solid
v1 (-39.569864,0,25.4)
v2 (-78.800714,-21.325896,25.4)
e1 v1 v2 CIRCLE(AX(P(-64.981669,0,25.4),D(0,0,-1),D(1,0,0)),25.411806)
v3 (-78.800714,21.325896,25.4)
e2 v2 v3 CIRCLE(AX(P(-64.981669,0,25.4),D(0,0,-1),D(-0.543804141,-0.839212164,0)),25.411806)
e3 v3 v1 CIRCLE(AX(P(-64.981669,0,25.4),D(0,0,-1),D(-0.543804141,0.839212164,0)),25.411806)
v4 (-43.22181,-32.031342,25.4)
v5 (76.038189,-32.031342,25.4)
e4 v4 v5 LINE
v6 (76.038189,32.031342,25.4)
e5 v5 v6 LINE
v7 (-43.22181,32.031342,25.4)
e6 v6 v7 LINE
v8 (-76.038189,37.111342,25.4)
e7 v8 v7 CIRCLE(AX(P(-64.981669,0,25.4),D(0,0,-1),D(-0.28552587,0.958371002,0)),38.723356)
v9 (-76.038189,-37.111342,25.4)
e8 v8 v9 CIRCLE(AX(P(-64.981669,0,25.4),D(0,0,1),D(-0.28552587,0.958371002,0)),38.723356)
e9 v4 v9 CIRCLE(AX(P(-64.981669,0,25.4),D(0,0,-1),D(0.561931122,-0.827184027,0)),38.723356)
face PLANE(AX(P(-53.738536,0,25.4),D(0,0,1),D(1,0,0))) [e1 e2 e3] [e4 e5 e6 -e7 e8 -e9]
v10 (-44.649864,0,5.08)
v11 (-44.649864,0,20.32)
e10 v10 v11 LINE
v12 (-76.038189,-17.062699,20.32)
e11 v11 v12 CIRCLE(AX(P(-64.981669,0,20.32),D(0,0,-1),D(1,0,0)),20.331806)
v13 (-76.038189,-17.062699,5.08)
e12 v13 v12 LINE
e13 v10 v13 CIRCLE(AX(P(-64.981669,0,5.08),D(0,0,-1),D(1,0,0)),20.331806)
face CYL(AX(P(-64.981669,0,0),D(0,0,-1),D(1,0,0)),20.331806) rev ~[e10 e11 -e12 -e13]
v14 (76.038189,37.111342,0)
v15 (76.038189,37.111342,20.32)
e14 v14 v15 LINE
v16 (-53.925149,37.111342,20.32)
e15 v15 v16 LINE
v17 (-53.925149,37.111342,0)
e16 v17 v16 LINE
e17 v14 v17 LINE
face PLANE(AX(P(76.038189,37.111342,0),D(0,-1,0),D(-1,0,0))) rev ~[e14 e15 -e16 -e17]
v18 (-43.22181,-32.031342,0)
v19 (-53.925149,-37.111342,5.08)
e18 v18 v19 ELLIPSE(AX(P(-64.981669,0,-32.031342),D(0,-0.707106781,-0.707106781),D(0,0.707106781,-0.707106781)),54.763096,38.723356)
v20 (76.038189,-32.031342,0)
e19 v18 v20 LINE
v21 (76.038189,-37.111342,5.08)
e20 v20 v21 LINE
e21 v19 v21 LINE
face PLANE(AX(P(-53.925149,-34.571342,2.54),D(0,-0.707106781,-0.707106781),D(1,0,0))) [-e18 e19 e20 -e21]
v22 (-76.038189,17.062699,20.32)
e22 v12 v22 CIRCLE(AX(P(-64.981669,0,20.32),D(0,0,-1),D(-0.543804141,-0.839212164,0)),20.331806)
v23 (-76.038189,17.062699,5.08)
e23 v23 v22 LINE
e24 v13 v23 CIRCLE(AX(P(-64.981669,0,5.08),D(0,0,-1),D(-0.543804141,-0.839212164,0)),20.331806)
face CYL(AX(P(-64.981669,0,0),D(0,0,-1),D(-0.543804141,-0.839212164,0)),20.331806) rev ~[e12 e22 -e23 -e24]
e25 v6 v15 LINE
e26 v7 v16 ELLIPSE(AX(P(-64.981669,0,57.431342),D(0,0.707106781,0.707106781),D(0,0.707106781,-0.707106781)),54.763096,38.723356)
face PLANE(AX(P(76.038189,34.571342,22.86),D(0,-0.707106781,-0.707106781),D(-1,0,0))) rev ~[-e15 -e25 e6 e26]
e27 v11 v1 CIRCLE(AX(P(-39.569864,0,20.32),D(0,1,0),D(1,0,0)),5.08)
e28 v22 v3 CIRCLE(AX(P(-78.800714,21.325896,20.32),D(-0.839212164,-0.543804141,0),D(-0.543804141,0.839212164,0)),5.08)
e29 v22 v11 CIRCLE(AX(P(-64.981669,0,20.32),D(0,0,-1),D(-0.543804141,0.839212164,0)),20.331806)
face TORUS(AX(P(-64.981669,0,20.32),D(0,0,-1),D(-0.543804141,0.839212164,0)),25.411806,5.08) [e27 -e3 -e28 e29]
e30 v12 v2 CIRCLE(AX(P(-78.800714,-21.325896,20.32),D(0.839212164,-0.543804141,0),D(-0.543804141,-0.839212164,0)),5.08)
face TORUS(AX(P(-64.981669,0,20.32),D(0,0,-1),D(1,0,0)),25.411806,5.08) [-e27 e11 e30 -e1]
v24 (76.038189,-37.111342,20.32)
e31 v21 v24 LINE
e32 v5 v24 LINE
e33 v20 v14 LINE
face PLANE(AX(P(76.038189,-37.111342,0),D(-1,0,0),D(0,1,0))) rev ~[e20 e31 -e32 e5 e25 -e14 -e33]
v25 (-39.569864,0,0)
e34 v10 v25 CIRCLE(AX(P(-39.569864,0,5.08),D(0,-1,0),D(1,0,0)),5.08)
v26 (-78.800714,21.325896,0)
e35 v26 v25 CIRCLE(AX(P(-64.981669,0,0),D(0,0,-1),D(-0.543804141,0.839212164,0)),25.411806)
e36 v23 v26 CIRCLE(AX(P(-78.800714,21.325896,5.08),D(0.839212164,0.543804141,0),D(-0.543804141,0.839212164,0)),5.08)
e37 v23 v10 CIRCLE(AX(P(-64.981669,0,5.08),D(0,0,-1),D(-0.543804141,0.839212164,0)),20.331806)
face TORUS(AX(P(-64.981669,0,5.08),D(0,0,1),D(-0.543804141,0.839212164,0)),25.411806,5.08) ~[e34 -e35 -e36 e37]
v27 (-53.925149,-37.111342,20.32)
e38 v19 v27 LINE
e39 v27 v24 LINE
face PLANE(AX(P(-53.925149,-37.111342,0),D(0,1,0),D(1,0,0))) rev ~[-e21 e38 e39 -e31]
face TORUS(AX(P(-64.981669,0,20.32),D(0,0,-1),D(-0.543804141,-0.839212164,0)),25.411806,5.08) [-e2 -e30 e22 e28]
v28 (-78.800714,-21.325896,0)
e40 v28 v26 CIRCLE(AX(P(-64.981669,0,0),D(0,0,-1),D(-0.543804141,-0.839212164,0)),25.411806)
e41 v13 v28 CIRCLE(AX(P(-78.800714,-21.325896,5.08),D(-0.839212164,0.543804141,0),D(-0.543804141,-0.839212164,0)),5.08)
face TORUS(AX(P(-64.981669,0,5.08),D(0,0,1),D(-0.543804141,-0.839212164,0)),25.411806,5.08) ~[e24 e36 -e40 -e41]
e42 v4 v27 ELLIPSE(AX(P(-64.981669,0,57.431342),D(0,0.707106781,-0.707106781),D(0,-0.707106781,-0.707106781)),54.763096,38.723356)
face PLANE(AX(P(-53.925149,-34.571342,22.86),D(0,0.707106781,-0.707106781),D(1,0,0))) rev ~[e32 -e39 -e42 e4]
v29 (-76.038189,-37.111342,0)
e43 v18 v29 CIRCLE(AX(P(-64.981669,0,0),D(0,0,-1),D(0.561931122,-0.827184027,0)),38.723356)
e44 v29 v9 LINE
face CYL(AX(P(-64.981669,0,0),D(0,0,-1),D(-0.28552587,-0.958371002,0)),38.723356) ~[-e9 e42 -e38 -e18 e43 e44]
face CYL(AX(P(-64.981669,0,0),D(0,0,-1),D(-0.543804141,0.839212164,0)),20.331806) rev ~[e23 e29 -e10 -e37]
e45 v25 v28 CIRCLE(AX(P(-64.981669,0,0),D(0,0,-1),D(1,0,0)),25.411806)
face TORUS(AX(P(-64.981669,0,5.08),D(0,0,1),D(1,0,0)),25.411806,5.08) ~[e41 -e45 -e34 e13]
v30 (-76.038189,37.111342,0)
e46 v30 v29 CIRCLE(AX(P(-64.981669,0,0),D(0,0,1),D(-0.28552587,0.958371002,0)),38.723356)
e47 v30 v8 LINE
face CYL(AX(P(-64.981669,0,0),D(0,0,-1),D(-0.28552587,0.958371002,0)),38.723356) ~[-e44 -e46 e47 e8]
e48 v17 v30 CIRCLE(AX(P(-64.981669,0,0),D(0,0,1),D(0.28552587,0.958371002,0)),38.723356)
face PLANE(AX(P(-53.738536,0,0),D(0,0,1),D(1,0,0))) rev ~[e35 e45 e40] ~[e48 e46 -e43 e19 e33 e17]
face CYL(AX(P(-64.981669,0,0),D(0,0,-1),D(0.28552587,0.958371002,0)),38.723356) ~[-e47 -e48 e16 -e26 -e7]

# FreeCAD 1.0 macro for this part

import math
import FreeCAD as App
import Part
import Sketcher
Q = App.Units.Quantity


def edges_at(feature, points):
    """Names of the edges that pass closest to the given points."""
    edges = feature.Shape.Edges
    near = lambda p: min(range(len(edges)), key=lambda i: edges[i].distToShape(Part.Vertex(*p))[0])
    return sorted({f"Edge{near(p) + 1}" for p in points})

doc = App.newDocument("Part")
body = doc.addObject("PartDesign::Body", "Body")

# Sketch on XY plane
sketch1 = body.newObject("Sketcher::SketchObject", "Sketch")
sketch1.AttachmentSupport = (doc.getObject("XY_Plane"), [""])
sketch1.MapMode = "FlatFace"
sketch1.addGeometry(Part.ArcOfCircle(Part.Circle(App.Vector(-65, 0, 0), App.Vector(0, 0, 1), 39), math.radians(107), math.radians(253)), False)
sketch1.addGeometry(Part.ArcOfCircle(Part.Circle(App.Vector(-65, 0, 0), App.Vector(0, 0, 1), 39), math.radians(-107), math.radians(-73)), False)
sketch1.addGeometry(Part.LineSegment(App.Vector(-54, -37, 0), App.Vector(76, -37, 0)), False)
sketch1.addGeometry(Part.LineSegment(App.Vector(76, -37, 0), App.Vector(76, 37, 0)), False)
sketch1.addGeometry(Part.LineSegment(App.Vector(76, 37, 0), App.Vector(-54, 37, 0)), False)
sketch1.addGeometry(Part.ArcOfCircle(Part.Circle(App.Vector(-65, 0, 0), App.Vector(0, 0, 1), 39), math.radians(73), math.radians(107)), False)
sketch1.addGeometry(Part.ArcOfCircle(Part.Circle(App.Vector(-65, 0, 0), App.Vector(0, 0, 1), 20), math.radians(0), math.radians(123)), False)
sketch1.addGeometry(Part.ArcOfCircle(Part.Circle(App.Vector(-65, 0, 0), App.Vector(0, 0, 1), 20), math.radians(-123), math.radians(0)), False)
sketch1.addGeometry(Part.ArcOfCircle(Part.Circle(App.Vector(-65, 0, 0), App.Vector(0, 0, 1), 20), math.radians(123), math.radians(237)), False)
sketch1.addConstraint(Sketcher.Constraint("Tangent", 0, 2, 1, 1))
sketch1.addConstraint(Sketcher.Constraint("Coincident", 1, 2, 2, 1))
sketch1.addConstraint(Sketcher.Constraint("Coincident", 2, 2, 3, 1))
sketch1.addConstraint(Sketcher.Constraint("Coincident", 3, 2, 4, 1))
sketch1.addConstraint(Sketcher.Constraint("Coincident", 4, 2, 5, 1))
sketch1.addConstraint(Sketcher.Constraint("Tangent", 5, 2, 0, 1))
sketch1.addConstraint(Sketcher.Constraint("Tangent", 6, 1, 7, 2))
sketch1.addConstraint(Sketcher.Constraint("Tangent", 7, 1, 8, 2))
sketch1.addConstraint(Sketcher.Constraint("Tangent", 8, 1, 6, 2))
sketch1.addConstraint(Sketcher.Constraint("Horizontal", 2))
sketch1.addConstraint(Sketcher.Constraint("Vertical", 3))
sketch1.addConstraint(Sketcher.Constraint("Horizontal", 4))
sketch1.addConstraint(Sketcher.Constraint("Coincident", 6, 3, 0, 3))
sketch1.addConstraint(Sketcher.Constraint("Equal", 0, 1))
sketch1.addConstraint(Sketcher.Constraint("Equal", 1, 5))
sketch1.addConstraint(Sketcher.Constraint("Symmetric", 0, 2, 3, 2, -1, 1))
sketch1.addConstraint(Sketcher.Constraint("Symmetric", 2, 2, 5, 2, -1, 1))
sketch1.addConstraint(Sketcher.Constraint("Symmetric", 7, 1, 8, 1, -1))
sketch1.addConstraint(Sketcher.Constraint("PointOnObject", 6, 1, -1))
sketch1.addConstraint(Sketcher.Constraint("Vertical", 5, 2, 7, 1))
sketch1.addConstraint(Sketcher.Constraint("Radius", 0, 38.723356))
sketch1.addConstraint(Sketcher.Constraint("Radius", 6, 20.331806))
sketch1.addConstraint(Sketcher.Constraint("DistanceX", 2, 1, 2, 2, 129.963338))
sketch1.addConstraint(Sketcher.Constraint("DistanceY", 7, 1, -1, 1, 17.062699))
pad1 = body.newObject("PartDesign::Pad", "Pad")
pad1.Profile = sketch1
pad1.Length = Q("1 in")
doc.recompute()

fillet = body.newObject("PartDesign::Fillet", "Fillet")
fillet.Base = (pad1, edges_at(pad1, [(-85.313, 0, 25.4)]))
fillet.Radius = Q("0.2 in")
doc.recompute()

fillet2 = body.newObject("PartDesign::Fillet", "Fillet001")
fillet2.Base = (fillet, edges_at(fillet, [(-85.313, 0, 0)]))
fillet2.Radius = Q("0.2 in")
doc.recompute()

chamfer = body.newObject("PartDesign::Chamfer", "Chamfer")
chamfer.Base = (fillet2, edges_at(fillet2, [(11.057, -37.111, 25.4), (11.057, 37.111, 25.4), (11.057, -37.111, 0)]))
chamfer.Size = Q("0.2 in")

doc.recompute()
